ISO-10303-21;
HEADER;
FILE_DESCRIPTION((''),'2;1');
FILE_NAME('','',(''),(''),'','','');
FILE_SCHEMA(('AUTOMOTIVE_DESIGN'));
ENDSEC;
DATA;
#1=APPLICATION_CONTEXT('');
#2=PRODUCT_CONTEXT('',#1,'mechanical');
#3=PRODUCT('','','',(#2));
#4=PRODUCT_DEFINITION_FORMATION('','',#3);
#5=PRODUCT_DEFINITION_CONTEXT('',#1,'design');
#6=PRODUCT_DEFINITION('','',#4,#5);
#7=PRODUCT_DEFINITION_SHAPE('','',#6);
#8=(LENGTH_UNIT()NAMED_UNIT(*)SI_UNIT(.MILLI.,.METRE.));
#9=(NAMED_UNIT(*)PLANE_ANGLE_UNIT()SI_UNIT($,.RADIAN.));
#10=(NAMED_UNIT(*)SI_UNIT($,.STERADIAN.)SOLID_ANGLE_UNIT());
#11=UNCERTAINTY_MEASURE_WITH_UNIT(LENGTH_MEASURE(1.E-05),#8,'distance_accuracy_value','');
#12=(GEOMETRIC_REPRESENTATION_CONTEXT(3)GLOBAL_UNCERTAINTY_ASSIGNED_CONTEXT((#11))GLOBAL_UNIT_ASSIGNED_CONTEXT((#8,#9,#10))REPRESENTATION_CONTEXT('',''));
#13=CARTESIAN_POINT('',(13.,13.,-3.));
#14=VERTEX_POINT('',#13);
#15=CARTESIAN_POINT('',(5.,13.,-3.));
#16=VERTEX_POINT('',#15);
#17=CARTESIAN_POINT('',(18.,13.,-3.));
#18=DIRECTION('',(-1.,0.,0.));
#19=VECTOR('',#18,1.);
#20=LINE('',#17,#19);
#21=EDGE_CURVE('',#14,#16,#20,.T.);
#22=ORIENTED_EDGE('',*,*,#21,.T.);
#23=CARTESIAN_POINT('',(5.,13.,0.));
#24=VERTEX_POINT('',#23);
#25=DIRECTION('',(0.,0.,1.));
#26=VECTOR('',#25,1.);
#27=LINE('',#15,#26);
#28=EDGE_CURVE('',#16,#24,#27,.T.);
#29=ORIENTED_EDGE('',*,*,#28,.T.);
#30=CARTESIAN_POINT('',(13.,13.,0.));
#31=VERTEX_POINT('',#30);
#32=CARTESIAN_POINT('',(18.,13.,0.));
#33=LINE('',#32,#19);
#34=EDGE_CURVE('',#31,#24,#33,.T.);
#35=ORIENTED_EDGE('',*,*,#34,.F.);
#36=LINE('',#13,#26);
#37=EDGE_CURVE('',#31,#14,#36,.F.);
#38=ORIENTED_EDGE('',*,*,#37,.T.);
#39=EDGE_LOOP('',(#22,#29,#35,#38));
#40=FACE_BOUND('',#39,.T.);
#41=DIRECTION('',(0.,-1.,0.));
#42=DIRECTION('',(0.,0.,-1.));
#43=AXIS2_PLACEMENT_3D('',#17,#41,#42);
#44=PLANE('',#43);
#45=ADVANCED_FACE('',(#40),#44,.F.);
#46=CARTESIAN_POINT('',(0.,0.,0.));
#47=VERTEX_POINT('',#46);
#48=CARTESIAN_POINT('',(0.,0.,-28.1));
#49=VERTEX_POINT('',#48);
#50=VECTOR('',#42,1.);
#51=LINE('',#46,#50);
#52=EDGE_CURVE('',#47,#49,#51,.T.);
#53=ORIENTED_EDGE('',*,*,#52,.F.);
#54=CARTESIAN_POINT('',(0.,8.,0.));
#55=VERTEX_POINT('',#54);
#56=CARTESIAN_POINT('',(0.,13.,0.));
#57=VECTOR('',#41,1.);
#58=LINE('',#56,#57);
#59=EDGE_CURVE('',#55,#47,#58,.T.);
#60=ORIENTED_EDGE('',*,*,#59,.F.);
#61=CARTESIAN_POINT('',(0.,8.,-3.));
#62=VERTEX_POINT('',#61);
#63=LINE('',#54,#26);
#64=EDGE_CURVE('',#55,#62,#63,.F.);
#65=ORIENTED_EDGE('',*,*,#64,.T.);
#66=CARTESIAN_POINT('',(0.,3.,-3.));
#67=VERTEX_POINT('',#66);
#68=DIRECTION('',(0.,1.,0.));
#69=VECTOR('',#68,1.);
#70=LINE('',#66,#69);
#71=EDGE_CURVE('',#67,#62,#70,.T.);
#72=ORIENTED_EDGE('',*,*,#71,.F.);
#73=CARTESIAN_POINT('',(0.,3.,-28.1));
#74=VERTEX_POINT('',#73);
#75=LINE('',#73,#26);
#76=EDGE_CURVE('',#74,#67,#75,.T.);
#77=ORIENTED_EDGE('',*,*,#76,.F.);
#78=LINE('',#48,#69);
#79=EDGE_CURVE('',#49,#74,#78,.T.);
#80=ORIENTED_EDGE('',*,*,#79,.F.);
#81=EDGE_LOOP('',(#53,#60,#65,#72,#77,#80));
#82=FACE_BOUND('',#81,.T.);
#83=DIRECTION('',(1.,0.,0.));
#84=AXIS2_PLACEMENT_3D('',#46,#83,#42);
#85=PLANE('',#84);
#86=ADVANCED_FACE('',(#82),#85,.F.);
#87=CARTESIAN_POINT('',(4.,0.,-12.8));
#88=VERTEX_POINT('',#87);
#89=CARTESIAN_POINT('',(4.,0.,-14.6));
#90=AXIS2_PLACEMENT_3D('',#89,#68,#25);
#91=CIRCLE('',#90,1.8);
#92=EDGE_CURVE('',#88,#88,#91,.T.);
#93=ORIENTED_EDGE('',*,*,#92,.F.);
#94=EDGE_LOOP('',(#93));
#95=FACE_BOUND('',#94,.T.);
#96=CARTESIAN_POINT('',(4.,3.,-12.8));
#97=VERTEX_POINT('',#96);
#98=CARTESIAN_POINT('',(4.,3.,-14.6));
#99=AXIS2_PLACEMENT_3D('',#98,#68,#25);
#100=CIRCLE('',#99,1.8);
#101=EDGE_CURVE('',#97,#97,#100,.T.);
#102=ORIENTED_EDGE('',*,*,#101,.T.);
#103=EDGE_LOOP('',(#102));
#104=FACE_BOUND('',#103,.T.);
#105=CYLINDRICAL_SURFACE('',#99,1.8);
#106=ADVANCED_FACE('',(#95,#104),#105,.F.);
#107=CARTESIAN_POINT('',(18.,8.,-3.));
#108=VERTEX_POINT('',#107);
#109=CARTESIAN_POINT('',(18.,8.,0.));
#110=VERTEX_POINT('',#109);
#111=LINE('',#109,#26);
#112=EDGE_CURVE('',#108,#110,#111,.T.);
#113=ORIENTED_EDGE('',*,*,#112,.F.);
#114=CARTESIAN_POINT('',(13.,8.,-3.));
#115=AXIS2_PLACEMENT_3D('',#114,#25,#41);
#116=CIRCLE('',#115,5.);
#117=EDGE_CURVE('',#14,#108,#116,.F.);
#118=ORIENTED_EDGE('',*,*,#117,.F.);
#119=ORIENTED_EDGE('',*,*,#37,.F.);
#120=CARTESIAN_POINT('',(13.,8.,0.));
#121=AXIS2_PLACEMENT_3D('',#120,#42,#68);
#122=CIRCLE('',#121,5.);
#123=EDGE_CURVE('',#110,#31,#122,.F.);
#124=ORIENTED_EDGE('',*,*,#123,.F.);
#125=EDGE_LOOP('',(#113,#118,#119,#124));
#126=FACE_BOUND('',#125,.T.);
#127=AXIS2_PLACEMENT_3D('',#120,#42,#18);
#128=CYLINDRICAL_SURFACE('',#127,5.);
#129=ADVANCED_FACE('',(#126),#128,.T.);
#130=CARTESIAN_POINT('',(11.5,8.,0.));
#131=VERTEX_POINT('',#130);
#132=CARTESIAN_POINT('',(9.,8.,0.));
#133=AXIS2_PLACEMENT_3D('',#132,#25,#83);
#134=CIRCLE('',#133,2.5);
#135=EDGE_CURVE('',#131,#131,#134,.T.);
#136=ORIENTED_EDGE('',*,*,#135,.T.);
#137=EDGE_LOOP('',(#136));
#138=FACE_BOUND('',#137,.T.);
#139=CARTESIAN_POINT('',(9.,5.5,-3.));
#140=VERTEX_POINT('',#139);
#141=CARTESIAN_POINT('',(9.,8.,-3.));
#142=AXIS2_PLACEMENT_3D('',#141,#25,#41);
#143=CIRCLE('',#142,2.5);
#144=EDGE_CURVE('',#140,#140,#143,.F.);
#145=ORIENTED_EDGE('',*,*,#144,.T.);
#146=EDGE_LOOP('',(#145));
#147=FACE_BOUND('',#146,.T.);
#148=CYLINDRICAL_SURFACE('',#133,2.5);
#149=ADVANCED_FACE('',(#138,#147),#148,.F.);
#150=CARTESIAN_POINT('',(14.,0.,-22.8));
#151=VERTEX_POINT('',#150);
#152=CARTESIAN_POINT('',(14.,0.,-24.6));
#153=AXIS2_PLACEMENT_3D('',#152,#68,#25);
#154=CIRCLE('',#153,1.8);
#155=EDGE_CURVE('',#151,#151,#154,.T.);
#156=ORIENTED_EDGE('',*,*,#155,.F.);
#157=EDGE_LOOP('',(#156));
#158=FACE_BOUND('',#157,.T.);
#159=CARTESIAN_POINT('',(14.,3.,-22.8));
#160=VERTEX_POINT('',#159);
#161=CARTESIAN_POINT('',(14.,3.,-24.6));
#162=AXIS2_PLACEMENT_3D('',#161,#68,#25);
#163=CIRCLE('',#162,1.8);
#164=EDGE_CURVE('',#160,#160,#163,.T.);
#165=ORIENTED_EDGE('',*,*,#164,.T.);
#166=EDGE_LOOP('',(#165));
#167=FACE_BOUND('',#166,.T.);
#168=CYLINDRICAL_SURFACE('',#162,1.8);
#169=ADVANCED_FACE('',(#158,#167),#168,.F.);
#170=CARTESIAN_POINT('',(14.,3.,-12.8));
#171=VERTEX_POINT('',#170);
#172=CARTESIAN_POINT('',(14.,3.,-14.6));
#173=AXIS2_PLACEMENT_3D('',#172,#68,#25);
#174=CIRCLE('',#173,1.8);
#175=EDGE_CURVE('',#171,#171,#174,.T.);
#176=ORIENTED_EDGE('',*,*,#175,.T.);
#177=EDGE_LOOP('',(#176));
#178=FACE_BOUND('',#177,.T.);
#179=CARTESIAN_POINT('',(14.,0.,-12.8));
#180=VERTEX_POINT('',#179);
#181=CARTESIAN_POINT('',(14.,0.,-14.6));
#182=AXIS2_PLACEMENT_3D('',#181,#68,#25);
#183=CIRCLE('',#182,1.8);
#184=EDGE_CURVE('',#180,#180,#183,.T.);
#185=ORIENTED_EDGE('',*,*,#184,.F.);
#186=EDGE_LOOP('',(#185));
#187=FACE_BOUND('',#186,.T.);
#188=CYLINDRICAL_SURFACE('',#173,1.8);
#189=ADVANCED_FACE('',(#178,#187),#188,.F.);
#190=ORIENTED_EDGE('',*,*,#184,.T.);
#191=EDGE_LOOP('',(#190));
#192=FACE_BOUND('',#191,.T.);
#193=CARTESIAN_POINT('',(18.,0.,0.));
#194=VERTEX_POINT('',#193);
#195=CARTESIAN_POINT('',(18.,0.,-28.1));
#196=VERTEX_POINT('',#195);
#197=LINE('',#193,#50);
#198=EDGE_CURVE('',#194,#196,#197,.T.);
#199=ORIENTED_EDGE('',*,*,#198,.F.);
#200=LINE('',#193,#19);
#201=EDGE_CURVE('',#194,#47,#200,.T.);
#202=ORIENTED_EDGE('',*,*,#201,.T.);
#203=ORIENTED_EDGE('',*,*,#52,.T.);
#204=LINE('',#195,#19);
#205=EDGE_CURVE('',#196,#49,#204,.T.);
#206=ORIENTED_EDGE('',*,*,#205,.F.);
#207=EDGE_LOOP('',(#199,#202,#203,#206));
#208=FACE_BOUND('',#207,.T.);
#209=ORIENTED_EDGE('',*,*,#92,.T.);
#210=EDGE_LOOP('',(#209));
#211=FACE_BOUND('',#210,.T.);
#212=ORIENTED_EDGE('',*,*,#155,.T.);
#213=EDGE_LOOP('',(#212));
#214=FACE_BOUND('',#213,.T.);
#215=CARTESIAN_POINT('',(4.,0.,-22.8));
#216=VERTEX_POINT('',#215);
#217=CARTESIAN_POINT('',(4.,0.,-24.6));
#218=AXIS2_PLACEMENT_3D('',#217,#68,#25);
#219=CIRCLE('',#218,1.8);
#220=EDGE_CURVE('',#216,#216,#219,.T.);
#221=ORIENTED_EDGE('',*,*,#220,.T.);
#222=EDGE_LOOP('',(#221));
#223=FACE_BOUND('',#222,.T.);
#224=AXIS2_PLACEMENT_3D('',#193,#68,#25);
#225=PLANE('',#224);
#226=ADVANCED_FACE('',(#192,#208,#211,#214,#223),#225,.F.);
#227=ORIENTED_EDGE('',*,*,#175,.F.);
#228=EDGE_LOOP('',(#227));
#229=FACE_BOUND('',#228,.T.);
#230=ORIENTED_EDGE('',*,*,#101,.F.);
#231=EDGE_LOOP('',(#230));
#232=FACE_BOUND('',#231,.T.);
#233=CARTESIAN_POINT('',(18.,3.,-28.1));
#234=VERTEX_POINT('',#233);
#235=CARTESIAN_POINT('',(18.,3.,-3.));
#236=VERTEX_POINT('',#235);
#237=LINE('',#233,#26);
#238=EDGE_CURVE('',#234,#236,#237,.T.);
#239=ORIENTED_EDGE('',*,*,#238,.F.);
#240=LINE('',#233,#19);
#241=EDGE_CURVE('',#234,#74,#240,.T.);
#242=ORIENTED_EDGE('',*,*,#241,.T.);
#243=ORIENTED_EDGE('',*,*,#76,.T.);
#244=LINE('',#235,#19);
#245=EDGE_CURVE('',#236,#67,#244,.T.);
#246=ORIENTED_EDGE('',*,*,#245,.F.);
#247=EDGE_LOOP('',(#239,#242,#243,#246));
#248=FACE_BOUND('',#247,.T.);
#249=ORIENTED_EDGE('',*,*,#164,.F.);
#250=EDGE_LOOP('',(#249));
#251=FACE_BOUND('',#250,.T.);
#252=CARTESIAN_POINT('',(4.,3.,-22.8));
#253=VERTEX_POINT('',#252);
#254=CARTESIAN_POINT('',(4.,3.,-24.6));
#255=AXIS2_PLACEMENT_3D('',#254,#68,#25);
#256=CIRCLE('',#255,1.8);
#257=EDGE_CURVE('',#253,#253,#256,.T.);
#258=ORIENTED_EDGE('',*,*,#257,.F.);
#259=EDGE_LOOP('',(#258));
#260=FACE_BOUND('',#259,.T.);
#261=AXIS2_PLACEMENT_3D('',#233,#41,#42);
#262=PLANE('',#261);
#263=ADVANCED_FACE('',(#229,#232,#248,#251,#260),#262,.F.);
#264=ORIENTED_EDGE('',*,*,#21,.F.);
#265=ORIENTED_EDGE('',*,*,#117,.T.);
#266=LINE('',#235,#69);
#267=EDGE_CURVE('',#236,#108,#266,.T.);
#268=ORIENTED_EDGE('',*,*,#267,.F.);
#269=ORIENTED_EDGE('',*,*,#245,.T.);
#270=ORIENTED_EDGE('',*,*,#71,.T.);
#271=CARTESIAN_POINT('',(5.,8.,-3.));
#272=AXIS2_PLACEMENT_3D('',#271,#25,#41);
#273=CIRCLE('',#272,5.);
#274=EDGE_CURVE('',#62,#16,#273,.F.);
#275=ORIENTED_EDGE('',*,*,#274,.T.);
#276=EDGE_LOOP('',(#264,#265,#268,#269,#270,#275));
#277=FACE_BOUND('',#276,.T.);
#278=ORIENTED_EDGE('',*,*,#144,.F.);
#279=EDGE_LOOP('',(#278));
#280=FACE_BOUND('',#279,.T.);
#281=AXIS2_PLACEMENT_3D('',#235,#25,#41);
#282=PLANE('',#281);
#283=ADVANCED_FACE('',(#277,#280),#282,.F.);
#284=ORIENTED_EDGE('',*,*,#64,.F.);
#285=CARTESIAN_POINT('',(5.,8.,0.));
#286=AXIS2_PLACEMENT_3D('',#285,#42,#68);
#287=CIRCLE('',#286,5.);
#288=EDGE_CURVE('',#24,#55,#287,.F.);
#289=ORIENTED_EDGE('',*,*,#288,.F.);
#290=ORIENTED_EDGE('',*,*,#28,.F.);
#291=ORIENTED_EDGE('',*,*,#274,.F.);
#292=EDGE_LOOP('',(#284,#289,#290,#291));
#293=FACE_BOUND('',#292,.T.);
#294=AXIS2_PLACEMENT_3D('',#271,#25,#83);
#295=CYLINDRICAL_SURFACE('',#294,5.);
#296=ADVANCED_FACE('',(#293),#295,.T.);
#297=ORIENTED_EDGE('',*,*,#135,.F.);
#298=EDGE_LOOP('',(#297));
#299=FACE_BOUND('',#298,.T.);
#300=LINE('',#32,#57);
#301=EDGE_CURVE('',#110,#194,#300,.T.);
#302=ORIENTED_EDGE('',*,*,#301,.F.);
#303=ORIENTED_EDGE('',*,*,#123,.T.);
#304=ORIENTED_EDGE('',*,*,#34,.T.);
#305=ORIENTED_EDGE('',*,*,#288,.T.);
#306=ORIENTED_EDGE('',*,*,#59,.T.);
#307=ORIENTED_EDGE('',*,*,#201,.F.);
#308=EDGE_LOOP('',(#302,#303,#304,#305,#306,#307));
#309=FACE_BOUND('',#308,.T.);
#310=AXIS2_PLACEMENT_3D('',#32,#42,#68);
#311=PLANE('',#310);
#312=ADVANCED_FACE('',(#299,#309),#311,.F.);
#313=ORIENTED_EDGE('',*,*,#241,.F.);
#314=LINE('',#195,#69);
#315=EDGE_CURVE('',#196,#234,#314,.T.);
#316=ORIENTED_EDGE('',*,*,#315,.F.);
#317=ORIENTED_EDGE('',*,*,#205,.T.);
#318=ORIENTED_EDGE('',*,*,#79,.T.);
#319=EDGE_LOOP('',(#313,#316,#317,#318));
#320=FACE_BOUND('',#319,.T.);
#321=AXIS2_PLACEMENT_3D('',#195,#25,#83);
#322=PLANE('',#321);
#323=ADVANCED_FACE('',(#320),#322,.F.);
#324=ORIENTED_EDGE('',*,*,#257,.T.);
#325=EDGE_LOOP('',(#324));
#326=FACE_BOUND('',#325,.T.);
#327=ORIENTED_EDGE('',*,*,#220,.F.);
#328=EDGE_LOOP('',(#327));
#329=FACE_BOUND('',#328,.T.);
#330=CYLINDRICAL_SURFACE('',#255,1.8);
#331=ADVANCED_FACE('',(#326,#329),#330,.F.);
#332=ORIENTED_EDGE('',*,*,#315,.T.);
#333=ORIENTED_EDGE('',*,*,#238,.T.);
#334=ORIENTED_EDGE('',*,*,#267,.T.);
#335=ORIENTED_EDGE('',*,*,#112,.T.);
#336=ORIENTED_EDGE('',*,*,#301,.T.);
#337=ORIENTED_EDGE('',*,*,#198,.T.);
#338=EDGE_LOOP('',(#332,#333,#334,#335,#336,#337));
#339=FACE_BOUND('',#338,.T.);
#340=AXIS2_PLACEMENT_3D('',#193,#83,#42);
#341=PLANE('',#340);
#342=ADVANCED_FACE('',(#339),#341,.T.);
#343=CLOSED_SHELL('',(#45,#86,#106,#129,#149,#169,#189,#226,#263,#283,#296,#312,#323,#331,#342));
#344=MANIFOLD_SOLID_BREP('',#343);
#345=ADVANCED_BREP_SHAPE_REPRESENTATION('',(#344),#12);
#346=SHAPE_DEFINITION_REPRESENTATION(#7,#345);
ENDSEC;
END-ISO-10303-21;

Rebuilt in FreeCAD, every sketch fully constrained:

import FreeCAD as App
import Part
import Sketcher

V = App.Vector


def edges_at(feature, points):
    """Names of the edges that pass closest to the given points."""
    edges = feature.Shape.Edges
    near = lambda p: min(range(len(edges)), key=lambda i: edges[i].distToShape(Part.Vertex(*p))[0])
    return sorted({f"Edge{near(p) + 1}" for p in points})


def add_polygon(sketch, points):
    """Adds a closed chain of lines whose ends are joined by coincident constraints."""
    first, n = sketch.GeometryCount, len(points)
    for a, b in zip(points, points[1:] + points[:1]):
        sketch.addGeometry(Part.LineSegment(App.Vector(*a, 0), App.Vector(*b, 0)), False)
    for i in range(n):
        sketch.addConstraint(Sketcher.Constraint("Coincident", first + i, 2, first + (i + 1) % n, 1))

doc = App.newDocument("Part")
body = doc.addObject("PartDesign::Body", "Body")

# Sketch on YZ plane
sketch1 = doc.addObject("Sketcher::SketchObject", "Sketch")
body.addObject(sketch1)
sketch1.AttachmentSupport = (doc.YZ_Plane, [""])
sketch1.MapMode = "FlatFace"
add_polygon(sketch1, [(0, 0), (0, -28.1), (3, -28.1), (3, -3), (13, -3), (13, 0)])  # lines 0-5
sketch1.addConstraint([
    Sketcher.Constraint("Vertical", 0),
    Sketcher.Constraint("Horizontal", 1),
    Sketcher.Constraint("Vertical", 2),
    Sketcher.Constraint("Horizontal", 3),
    Sketcher.Constraint("Vertical", 4),
    Sketcher.Constraint("Horizontal", 5),
    Sketcher.Constraint("Coincident", 5, 2, -1, 1),
    Sketcher.Constraint("Equal", 1, 4),
    Sketcher.Constraint("DistanceX", 1, 1, 1, 2, 3.0),
    Sketcher.Constraint("DistanceX", 3, 1, 3, 2, 10.0),
    Sketcher.Constraint("DistanceY", 0, 2, 0, 1, 28.1),
])
pad1 = doc.addObject("PartDesign::Pad", "Pad")
body.addObject(pad1)
pad1.Profile = sketch1
pad1.Length = 18

# Sketch on XY plane
sketch2 = doc.addObject("Sketcher::SketchObject", "Sketch001")
body.addObject(sketch2)
sketch2.AttachmentSupport = (doc.XY_Plane, [""])
sketch2.MapMode = "FlatFace"
sketch2.addGeometry(Part.Circle(V(9, 8, 0), V(0, 0, 1), 2.5), False)
sketch2.addConstraint([
    Sketcher.Constraint("Diameter", 0, 5.0),
    Sketcher.Constraint("DistanceX", -1, 1, 0, 3, 9.0),
    Sketcher.Constraint("DistanceY", -1, 1, 0, 3, 8.0),
])
doc.recompute()
hole = doc.addObject("PartDesign::Hole", "Hole")
body.addObject(hole)
hole.Profile = sketch2
hole.ThreadType = "None"
hole.Diameter = 5
hole.DepthType = "Dimension"
hole.Depth = 3
hole.DrillPoint = "Angled"
hole.DrillPointAngle = 118
doc.recompute()

fillet = doc.addObject("PartDesign::Fillet", "Fillet")
body.addObject(fillet)
fillet.Base = (hole, edges_at(hole, [(18, 13, -1.5), (0, 13, -1.5)]))
fillet.Radius = 5

# Sketch on XZ plane
sketch3 = doc.addObject("Sketcher::SketchObject", "Sketch002")
body.addObject(sketch3)
sketch3.AttachmentSupport = (doc.XZ_Plane, [""])
sketch3.MapMode = "FlatFace"
sketch3.AttachmentOffset = App.Placement(V(0, 0, -3), App.Rotation())
sketch3.addGeometry([
    Part.Circle(V(14, -24.6, 0), V(0, 0, 1), 1.8),
    Part.Circle(V(4, -24.6, 0), V(0, 0, 1), 1.8),
    Part.Circle(V(4, -14.6, 0), V(0, 0, 1), 1.8),
    Part.Circle(V(14, -14.6, 0), V(0, 0, 1), 1.8),
], False)
sketch3.addConstraint([
    Sketcher.Constraint("Equal", 0, 1),
    Sketcher.Constraint("Equal", 1, 2),
    Sketcher.Constraint("Equal", 2, 3),
    Sketcher.Constraint("Horizontal", 0, 3, 1, 3),
    Sketcher.Constraint("Horizontal", 2, 3, 3, 3),
    Sketcher.Constraint("Vertical", 1, 3, 2, 3),
    Sketcher.Constraint("Vertical", 0, 3, 3, 3),
    Sketcher.Constraint("Diameter", 0, 3.6),
    Sketcher.Constraint("DistanceX", -1, 1, 0, 3, 14.0),
    Sketcher.Constraint("DistanceX", -1, 1, 1, 3, 4.0),
    Sketcher.Constraint("DistanceY", 1, 3, 2, 3, 10.0),
    Sketcher.Constraint("DistanceY", 0, 3, -1, 1, 24.6),
])
doc.recompute()
hole2 = doc.addObject("PartDesign::Hole", "Hole001")
body.addObject(hole2)
hole2.Profile = sketch3
hole2.ThreadType = "None"
hole2.Diameter = 3.6
hole2.DepthType = "ThroughAll"
hole2.Reversed = True

doc.recompute()
